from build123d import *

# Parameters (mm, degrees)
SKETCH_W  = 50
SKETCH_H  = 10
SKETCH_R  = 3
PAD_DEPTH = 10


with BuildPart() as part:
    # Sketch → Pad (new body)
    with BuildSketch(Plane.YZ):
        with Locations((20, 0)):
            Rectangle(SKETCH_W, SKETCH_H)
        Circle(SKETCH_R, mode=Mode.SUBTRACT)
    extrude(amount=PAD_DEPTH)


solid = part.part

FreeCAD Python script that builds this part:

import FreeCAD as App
import Part
import Sketcher

V = App.Vector

doc = App.newDocument("Part")
params = doc.addObject("Spreadsheet::Sheet", "Params")
for row, (alias, value) in enumerate([
    ("sketch1_diameter", "6 mm"),
    ("sketch1_width", "50 mm"),
    ("sketch1_height", "10 mm"),
    ("pad1_length", "10 mm"),
], start=1):
    params.set(f"A{row}", alias)
    params.set(f"B{row}", "=" + value)
    params.setAlias(f"B{row}", alias)

body = doc.addObject("PartDesign::Body", "Body")

# Sketch on YZ plane
sketch1 = body.newObject("Sketcher::SketchObject", "Sketch")
sketch1.AttachmentSupport = (doc.getObject("YZ_Plane"), [""])
sketch1.MapMode = "FlatFace"
sketch1.addGeometry(Part.LineSegment(V(-5, 5, 0), V(-5, -5, 0)), False)
sketch1.addGeometry(Part.LineSegment(V(-5, -5, 0), V(45, -5, 0)), False)
sketch1.addGeometry(Part.LineSegment(V(45, -5, 0), V(45, 5, 0)), False)
sketch1.addGeometry(Part.LineSegment(V(45, 5, 0), V(-5, 5, 0)), False)
sketch1.addGeometry(Part.Circle(V(0, 0, 0), V(0, 0, 1), 3), False)
sketch1.addConstraint(Sketcher.Constraint("Coincident", 0, 2, 1, 1))
sketch1.addConstraint(Sketcher.Constraint("Coincident", 1, 2, 2, 1))
sketch1.addConstraint(Sketcher.Constraint("Coincident", 2, 2, 3, 1))
sketch1.addConstraint(Sketcher.Constraint("Coincident", 3, 2, 0, 1))
sketch1.addConstraint(Sketcher.Constraint("Vertical", 0))
sketch1.addConstraint(Sketcher.Constraint("Horizontal", 1))
sketch1.addConstraint(Sketcher.Constraint("Vertical", 2))
sketch1.addConstraint(Sketcher.Constraint("Horizontal", 3))
sketch1.addConstraint(Sketcher.Constraint("Coincident", 4, 3, -1, 1))
sketch1.addConstraint(Sketcher.Constraint("Diameter", 4, 6.0))
sketch1.addConstraint(Sketcher.Constraint("DistanceX", 1, 1, 1, 2, 50.0))
sketch1.addConstraint(Sketcher.Constraint("DistanceY", 0, 2, 0, 1, 10.0))
sketch1.addConstraint(Sketcher.Constraint("DistanceX", 0, 2, -1, 1, 5.0))
sketch1.addConstraint(Sketcher.Constraint("DistanceY", 0, 2, -1, 1, 5.0))
sketch1.setExpression("Constraints[9]", "Params.sketch1_diameter")
sketch1.setExpression("Constraints[10]", "Params.sketch1_width")
sketch1.setExpression("Constraints[11]", "Params.sketch1_height")
pad1 = body.newObject("PartDesign::Pad", "Pad")
pad1.Profile = sketch1
pad1.setExpression("Length", "Params.pad1_length")

doc.recompute()
